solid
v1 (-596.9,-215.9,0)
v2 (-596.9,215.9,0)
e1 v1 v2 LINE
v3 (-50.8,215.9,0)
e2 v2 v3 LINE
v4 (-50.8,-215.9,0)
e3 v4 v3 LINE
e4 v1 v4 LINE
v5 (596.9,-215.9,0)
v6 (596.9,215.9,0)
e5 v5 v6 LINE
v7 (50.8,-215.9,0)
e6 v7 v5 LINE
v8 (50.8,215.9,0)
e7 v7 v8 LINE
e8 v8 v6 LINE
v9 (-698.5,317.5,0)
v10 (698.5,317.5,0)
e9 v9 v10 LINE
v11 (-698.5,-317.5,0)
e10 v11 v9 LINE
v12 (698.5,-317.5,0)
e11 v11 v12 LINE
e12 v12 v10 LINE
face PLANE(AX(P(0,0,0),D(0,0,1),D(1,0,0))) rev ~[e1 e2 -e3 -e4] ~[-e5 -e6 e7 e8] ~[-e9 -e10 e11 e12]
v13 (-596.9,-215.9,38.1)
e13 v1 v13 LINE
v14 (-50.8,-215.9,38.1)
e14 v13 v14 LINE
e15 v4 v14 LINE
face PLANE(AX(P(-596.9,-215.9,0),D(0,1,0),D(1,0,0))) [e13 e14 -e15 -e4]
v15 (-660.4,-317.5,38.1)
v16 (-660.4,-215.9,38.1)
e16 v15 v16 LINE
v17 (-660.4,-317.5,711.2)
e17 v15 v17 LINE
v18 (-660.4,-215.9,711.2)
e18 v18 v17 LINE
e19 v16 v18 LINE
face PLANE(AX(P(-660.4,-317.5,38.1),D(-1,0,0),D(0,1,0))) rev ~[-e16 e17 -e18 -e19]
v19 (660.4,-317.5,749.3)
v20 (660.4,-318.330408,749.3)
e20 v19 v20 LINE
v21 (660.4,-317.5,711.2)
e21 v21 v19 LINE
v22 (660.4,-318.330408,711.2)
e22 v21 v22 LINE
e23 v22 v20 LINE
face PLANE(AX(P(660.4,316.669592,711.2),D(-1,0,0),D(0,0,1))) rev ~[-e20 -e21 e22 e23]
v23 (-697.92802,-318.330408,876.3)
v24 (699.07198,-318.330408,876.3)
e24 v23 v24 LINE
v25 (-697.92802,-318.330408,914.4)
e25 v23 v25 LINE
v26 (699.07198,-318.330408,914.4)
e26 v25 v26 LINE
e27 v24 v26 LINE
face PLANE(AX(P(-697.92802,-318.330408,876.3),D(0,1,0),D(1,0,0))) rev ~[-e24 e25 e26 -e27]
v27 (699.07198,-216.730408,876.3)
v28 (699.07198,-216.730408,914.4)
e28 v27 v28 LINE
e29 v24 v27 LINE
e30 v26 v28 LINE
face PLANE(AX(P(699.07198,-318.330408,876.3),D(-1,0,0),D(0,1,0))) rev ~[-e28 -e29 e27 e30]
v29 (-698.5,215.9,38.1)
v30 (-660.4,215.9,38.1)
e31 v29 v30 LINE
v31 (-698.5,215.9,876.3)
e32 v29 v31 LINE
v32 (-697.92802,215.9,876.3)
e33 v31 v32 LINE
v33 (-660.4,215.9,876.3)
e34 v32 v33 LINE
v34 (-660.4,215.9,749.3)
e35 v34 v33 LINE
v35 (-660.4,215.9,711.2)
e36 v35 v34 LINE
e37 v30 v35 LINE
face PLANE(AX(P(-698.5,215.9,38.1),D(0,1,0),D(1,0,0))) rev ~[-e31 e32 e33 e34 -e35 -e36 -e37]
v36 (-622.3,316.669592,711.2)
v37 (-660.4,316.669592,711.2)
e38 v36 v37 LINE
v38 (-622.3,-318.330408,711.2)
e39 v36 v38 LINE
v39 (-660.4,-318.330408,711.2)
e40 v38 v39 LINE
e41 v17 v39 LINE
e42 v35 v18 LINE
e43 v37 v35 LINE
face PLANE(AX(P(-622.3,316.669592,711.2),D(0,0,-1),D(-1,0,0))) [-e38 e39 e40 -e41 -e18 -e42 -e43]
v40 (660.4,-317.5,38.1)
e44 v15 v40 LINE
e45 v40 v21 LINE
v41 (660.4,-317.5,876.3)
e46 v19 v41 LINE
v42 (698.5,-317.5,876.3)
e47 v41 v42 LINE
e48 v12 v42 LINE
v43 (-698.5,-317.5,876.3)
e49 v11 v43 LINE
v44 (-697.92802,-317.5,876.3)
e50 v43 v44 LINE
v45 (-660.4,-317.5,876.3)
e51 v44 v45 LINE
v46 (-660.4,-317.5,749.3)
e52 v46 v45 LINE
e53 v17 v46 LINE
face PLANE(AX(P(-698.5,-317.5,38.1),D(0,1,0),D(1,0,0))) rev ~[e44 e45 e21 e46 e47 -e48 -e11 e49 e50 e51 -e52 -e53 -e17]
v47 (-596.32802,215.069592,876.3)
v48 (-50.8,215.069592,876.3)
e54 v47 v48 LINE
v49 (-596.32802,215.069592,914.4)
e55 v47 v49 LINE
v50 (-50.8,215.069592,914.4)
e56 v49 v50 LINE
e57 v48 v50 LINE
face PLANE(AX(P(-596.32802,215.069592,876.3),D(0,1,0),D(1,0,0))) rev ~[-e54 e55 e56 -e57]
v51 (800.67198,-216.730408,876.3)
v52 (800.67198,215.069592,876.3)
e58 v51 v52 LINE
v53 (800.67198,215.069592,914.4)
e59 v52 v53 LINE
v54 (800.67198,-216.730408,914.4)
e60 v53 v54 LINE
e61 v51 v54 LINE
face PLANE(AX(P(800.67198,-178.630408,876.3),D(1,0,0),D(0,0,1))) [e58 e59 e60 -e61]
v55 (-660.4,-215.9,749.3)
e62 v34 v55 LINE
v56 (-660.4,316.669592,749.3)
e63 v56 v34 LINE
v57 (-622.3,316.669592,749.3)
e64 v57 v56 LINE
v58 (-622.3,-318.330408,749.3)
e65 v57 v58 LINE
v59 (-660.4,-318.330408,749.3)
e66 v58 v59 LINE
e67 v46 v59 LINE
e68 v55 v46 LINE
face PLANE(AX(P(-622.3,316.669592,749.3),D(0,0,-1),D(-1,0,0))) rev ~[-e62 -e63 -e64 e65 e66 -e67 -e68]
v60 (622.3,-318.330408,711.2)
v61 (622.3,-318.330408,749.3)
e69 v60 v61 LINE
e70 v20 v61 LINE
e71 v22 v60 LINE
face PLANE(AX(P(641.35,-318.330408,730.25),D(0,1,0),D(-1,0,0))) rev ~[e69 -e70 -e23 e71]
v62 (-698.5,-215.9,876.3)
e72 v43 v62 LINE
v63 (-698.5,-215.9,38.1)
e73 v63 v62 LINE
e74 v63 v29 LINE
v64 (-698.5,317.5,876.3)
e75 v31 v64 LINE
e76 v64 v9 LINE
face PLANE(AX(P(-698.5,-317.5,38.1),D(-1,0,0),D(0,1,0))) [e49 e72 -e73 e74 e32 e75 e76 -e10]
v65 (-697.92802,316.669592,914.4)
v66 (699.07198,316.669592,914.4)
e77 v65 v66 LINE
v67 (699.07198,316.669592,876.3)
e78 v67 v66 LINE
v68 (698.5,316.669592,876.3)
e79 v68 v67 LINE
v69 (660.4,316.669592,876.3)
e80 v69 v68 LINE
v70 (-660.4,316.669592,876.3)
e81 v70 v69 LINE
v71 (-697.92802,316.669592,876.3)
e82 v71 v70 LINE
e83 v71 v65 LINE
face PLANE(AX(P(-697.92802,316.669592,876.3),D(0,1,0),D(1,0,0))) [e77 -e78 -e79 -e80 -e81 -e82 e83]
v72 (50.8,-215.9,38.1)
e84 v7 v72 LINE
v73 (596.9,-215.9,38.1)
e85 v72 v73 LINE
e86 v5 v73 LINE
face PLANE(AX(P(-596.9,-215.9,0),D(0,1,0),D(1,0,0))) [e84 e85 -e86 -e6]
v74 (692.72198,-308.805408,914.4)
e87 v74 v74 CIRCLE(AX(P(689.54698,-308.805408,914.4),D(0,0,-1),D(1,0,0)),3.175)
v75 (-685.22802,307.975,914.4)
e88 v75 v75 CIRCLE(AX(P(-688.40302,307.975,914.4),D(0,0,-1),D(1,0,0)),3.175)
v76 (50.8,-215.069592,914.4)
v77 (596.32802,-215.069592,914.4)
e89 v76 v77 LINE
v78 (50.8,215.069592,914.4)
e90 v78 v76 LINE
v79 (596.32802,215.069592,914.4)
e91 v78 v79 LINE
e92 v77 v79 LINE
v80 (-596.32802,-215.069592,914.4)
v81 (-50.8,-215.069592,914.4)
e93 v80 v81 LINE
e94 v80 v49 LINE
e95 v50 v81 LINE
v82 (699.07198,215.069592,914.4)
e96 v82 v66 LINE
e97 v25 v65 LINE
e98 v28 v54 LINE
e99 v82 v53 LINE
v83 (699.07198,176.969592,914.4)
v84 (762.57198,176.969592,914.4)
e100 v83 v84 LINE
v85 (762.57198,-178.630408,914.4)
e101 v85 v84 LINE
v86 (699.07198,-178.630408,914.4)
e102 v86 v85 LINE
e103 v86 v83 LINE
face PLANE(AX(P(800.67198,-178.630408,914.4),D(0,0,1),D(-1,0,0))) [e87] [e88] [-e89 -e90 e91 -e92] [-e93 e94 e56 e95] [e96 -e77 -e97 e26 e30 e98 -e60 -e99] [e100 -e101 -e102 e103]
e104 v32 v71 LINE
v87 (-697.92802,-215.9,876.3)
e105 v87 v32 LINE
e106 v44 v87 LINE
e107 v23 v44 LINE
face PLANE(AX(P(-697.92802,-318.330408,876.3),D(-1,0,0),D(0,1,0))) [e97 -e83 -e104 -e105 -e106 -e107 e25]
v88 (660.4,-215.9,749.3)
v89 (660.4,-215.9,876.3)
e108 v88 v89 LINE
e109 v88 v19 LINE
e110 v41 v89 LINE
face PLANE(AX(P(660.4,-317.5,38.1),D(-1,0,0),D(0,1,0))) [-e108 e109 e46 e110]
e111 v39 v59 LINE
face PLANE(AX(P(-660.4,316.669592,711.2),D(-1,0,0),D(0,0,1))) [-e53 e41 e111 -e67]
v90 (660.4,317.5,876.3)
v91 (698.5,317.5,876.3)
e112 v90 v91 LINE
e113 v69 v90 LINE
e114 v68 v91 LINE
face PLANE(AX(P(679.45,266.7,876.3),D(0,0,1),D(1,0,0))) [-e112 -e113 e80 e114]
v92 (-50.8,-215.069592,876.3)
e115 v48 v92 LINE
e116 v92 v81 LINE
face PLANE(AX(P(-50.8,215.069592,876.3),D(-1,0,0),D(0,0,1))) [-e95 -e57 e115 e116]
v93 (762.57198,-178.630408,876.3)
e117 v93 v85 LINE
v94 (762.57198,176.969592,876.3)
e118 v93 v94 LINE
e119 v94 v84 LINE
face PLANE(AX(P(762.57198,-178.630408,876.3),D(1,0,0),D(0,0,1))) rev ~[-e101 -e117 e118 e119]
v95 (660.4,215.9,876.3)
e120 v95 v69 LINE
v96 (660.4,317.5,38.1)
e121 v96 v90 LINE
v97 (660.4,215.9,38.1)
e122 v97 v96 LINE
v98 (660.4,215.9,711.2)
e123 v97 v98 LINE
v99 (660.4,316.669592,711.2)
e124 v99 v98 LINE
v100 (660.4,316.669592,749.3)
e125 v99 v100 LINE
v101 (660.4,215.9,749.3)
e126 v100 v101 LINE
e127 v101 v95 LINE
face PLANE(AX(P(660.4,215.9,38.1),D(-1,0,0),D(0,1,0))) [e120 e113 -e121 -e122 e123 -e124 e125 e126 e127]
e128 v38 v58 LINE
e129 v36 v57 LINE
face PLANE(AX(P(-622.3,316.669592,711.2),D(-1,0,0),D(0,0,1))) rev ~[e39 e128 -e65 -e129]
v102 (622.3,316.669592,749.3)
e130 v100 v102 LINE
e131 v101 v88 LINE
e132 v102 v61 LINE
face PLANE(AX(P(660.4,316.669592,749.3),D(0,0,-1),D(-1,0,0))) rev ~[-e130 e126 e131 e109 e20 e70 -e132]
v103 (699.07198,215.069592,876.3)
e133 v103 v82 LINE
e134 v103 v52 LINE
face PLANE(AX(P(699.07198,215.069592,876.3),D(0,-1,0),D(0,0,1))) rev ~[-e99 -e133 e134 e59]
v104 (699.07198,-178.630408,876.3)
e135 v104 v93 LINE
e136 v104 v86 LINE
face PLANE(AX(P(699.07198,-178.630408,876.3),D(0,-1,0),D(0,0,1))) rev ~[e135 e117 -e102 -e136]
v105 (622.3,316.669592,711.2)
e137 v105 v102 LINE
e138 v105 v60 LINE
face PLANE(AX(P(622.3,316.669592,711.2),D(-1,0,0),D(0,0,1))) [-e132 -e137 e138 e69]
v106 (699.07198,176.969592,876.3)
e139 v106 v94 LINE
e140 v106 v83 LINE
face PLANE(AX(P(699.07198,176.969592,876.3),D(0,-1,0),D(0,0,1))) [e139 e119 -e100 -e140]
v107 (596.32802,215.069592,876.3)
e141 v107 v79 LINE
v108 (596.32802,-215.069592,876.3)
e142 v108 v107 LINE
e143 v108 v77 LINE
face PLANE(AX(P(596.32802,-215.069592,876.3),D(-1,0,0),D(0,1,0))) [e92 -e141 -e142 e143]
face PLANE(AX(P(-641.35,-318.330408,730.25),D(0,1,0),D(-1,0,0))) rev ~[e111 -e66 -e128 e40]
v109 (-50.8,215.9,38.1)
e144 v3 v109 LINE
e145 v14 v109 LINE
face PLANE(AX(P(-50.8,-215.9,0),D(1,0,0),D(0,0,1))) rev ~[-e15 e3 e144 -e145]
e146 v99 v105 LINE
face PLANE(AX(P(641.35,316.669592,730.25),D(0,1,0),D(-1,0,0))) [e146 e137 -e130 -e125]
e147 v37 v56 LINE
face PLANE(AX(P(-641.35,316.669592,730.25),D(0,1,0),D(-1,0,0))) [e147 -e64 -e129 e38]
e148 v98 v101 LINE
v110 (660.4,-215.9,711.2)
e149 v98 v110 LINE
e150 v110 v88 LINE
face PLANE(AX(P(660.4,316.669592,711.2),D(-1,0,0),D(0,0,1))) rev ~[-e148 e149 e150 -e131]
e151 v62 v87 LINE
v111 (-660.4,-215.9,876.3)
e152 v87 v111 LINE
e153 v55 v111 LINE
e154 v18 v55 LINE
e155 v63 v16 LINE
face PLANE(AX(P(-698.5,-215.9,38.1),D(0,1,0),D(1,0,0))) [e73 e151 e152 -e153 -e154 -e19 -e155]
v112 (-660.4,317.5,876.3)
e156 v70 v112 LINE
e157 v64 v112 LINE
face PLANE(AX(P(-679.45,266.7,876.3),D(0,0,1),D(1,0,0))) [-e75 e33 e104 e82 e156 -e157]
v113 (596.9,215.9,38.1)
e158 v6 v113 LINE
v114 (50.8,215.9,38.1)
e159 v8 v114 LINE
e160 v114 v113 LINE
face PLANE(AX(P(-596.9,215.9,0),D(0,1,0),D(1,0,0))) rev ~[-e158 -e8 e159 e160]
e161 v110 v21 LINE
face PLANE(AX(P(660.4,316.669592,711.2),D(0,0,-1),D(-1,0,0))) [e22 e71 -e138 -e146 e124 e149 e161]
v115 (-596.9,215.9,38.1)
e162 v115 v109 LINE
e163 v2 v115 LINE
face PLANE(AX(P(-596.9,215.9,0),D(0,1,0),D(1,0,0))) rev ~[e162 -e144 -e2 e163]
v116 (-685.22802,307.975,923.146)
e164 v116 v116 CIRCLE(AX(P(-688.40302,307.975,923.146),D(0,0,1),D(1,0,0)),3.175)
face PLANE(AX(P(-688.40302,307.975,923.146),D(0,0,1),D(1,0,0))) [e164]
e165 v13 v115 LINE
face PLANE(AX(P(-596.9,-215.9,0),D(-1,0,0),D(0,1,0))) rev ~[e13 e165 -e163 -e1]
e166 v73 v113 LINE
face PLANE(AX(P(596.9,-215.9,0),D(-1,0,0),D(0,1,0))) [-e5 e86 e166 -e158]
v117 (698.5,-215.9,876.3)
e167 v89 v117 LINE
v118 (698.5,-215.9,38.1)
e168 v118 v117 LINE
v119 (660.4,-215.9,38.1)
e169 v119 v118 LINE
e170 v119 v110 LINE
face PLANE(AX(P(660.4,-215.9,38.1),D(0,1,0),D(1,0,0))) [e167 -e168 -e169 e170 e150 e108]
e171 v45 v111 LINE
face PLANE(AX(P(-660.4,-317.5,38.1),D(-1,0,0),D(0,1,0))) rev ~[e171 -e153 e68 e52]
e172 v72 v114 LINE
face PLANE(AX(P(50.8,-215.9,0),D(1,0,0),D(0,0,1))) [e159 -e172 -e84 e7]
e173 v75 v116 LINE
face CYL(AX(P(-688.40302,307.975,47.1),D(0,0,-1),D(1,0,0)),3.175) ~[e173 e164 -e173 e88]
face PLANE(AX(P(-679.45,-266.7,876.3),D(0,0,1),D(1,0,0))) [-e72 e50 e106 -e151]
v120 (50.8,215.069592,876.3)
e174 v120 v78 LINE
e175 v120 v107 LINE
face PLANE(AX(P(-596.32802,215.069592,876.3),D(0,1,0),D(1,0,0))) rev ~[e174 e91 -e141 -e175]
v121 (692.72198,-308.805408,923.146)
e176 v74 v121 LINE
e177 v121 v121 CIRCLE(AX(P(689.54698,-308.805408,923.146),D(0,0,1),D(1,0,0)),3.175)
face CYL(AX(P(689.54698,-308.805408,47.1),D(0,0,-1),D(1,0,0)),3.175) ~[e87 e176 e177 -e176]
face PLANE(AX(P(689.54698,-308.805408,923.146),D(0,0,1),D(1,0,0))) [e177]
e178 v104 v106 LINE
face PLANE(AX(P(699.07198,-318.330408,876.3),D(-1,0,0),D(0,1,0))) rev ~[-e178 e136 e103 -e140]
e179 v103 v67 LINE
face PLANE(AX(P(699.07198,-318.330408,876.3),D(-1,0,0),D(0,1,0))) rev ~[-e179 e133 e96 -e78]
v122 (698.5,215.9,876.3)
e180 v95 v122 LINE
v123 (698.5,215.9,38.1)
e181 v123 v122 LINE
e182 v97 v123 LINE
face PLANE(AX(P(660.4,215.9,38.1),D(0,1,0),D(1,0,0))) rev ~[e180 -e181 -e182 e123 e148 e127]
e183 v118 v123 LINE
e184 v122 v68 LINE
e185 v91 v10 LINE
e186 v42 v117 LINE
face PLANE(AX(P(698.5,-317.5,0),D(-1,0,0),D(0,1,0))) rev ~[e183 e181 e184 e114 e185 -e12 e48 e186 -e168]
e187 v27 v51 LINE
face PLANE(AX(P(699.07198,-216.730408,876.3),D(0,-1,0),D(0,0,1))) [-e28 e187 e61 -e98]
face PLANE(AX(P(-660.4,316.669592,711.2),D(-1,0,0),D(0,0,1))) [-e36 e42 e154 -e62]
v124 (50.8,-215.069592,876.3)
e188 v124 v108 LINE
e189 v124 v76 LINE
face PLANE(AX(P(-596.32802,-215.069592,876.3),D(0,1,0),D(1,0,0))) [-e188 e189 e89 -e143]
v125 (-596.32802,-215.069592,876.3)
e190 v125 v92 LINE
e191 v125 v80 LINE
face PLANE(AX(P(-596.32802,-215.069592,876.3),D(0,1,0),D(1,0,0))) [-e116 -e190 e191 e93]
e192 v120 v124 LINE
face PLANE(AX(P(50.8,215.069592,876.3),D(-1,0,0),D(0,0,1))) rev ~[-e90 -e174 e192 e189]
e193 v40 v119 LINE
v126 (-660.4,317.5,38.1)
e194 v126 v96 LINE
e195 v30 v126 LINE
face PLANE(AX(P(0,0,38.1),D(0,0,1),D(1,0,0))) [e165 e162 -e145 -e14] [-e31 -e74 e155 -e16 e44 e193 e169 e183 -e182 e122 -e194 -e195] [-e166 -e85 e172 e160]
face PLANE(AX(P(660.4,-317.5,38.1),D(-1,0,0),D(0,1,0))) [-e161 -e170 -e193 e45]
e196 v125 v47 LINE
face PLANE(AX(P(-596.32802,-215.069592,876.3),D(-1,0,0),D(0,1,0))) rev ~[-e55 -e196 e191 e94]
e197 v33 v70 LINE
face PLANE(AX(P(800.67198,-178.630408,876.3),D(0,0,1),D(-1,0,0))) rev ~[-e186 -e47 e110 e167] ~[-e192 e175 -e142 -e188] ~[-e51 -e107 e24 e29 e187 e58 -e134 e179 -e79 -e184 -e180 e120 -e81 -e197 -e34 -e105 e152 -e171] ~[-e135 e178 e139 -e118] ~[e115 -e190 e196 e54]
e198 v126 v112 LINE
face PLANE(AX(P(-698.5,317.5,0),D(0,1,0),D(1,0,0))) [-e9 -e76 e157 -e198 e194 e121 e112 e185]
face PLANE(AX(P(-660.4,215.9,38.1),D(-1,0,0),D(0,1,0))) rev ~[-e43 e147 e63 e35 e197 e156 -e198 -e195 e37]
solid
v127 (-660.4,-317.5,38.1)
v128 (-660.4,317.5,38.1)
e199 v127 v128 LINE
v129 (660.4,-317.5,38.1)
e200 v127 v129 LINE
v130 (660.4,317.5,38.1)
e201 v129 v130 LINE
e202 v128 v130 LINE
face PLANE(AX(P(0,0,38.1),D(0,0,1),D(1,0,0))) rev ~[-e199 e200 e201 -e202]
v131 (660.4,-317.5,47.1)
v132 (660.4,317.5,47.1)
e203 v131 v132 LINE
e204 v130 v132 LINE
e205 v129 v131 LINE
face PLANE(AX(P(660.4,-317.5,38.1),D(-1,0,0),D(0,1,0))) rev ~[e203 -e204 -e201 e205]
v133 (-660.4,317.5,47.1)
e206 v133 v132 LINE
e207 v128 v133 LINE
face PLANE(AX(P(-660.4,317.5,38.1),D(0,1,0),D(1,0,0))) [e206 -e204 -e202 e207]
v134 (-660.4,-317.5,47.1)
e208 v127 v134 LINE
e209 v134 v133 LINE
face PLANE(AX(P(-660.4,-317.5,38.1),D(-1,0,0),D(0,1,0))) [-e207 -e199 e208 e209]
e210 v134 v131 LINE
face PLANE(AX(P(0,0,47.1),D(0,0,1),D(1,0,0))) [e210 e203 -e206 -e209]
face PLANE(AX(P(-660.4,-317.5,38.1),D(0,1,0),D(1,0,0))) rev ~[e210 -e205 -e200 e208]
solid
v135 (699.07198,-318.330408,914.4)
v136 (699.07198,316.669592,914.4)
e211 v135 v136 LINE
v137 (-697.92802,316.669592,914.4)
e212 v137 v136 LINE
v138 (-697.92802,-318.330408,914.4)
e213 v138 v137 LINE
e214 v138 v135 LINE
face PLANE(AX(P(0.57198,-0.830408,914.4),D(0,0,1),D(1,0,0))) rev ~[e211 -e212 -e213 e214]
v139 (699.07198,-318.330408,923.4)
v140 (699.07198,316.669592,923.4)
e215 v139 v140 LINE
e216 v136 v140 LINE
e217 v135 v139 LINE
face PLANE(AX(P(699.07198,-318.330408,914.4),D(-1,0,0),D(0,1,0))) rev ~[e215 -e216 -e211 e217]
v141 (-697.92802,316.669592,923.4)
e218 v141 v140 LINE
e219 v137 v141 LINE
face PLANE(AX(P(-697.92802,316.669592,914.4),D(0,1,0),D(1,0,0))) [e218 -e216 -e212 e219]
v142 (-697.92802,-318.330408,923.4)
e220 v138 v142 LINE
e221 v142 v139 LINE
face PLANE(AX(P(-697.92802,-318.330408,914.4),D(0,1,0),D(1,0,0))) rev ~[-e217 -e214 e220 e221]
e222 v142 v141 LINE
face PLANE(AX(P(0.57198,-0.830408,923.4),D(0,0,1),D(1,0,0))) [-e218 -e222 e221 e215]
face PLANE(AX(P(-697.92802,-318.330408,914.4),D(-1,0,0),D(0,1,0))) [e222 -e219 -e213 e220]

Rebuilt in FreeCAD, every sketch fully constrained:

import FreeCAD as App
import Part
import Sketcher
Q = App.Units.Quantity

doc = App.newDocument("Part")
body = doc.addObject("PartDesign::Body", "Body")

# Sketch on XY plane
sketch1 = doc.addObject("Sketcher::SketchObject", "Sketch")
body.addObject(sketch1)
sketch1.AttachmentSupport = (doc.XY_Plane, [""])
sketch1.MapMode = "FlatFace"
sketch1.addGeometry(Part.LineSegment(App.Vector(-698, 318, 0), App.Vector(-698, -318, 0)), False)
sketch1.addGeometry(Part.LineSegment(App.Vector(-698, -318, 0), App.Vector(698, -318, 0)), False)
sketch1.addGeometry(Part.LineSegment(App.Vector(698, -318, 0), App.Vector(698, 318, 0)), False)
sketch1.addGeometry(Part.LineSegment(App.Vector(698, 318, 0), App.Vector(-698, 318, 0)), False)
sketch1.addGeometry(Part.LineSegment(App.Vector(597, -216, 0), App.Vector(-597, -216, 0)), False)
sketch1.addGeometry(Part.LineSegment(App.Vector(-597, -216, 0), App.Vector(-597, 216, 0)), False)
sketch1.addGeometry(Part.LineSegment(App.Vector(-597, 216, 0), App.Vector(597, 216, 0)), False)
sketch1.addGeometry(Part.LineSegment(App.Vector(597, 216, 0), App.Vector(597, -216, 0)), False)
sketch1.addConstraint(Sketcher.Constraint("Coincident", 0, 2, 1, 1))
sketch1.addConstraint(Sketcher.Constraint("Coincident", 1, 2, 2, 1))
sketch1.addConstraint(Sketcher.Constraint("Coincident", 2, 2, 3, 1))
sketch1.addConstraint(Sketcher.Constraint("Coincident", 3, 2, 0, 1))
sketch1.addConstraint(Sketcher.Constraint("Coincident", 4, 2, 5, 1))
sketch1.addConstraint(Sketcher.Constraint("Coincident", 5, 2, 6, 1))
sketch1.addConstraint(Sketcher.Constraint("Coincident", 6, 2, 7, 1))
sketch1.addConstraint(Sketcher.Constraint("Coincident", 7, 2, 4, 1))
sketch1.addConstraint(Sketcher.Constraint("Vertical", 0))
sketch1.addConstraint(Sketcher.Constraint("Horizontal", 1))
sketch1.addConstraint(Sketcher.Constraint("Vertical", 2))
sketch1.addConstraint(Sketcher.Constraint("Horizontal", 3))
sketch1.addConstraint(Sketcher.Constraint("Horizontal", 4))
sketch1.addConstraint(Sketcher.Constraint("Vertical", 5))
sketch1.addConstraint(Sketcher.Constraint("Horizontal", 6))
sketch1.addConstraint(Sketcher.Constraint("Vertical", 7))
sketch1.addConstraint(Sketcher.Constraint("Symmetric", 0, 2, 2, 2, -1, 1))
sketch1.addConstraint(Sketcher.Constraint("Symmetric", 4, 2, 6, 2, -1, 1))
sketch1.addConstraint(Sketcher.Constraint("DistanceX", 1, 1, 1, 2, Q("55 in")))
sketch1.addConstraint(Sketcher.Constraint("DistanceX", 4, 2, 4, 1, Q("47 in")))
sketch1.addConstraint(Sketcher.Constraint("DistanceY", 0, 2, 0, 1, Q("25 in")))
sketch1.addConstraint(Sketcher.Constraint("DistanceY", 5, 1, 5, 2, Q("17 in")))
pad1 = doc.addObject("PartDesign::Pad", "Pad")
body.addObject(pad1)
pad1.Profile = sketch1
pad1.Length = Q("1.5 in")

# Sketch on XY plane
sketch2 = doc.addObject("Sketcher::SketchObject", "Sketch001")
body.addObject(sketch2)
sketch2.AttachmentSupport = (doc.XY_Plane, [""])
sketch2.MapMode = "FlatFace"
sketch2.AttachmentOffset = App.Placement(App.Vector(0, 0, 1.5 * 25.4), App.Rotation())
sketch2.addGeometry(Part.LineSegment(App.Vector(-698, -216, 0), App.Vector(-698, -318, 0)), False)
sketch2.addGeometry(Part.LineSegment(App.Vector(-698, -318, 0), App.Vector(-660, -318, 0)), False)
sketch2.addGeometry(Part.LineSegment(App.Vector(-660, -318, 0), App.Vector(-660, -216, 0)), False)
sketch2.addGeometry(Part.LineSegment(App.Vector(-660, -216, 0), App.Vector(-698, -216, 0)), False)
sketch2.addGeometry(Part.LineSegment(App.Vector(-698, 318, 0), App.Vector(-698, 216, 0)), False)
sketch2.addGeometry(Part.LineSegment(App.Vector(-698, 216, 0), App.Vector(-660, 216, 0)), False)
sketch2.addGeometry(Part.LineSegment(App.Vector(-660, 216, 0), App.Vector(-660, 318, 0)), False)
sketch2.addGeometry(Part.LineSegment(App.Vector(-660, 318, 0), App.Vector(-698, 318, 0)), False)
sketch2.addGeometry(Part.LineSegment(App.Vector(660, 318, 0), App.Vector(660, 216, 0)), False)
sketch2.addGeometry(Part.LineSegment(App.Vector(660, 216, 0), App.Vector(698, 216, 0)), False)
sketch2.addGeometry(Part.LineSegment(App.Vector(698, 216, 0), App.Vector(698, 318, 0)), False)
sketch2.addGeometry(Part.LineSegment(App.Vector(698, 318, 0), App.Vector(660, 318, 0)), False)
sketch2.addGeometry(Part.LineSegment(App.Vector(660, -216, 0), App.Vector(660, -318, 0)), False)
sketch2.addGeometry(Part.LineSegment(App.Vector(660, -318, 0), App.Vector(698, -318, 0)), False)
sketch2.addGeometry(Part.LineSegment(App.Vector(698, -318, 0), App.Vector(698, -216, 0)), False)
sketch2.addGeometry(Part.LineSegment(App.Vector(698, -216, 0), App.Vector(660, -216, 0)), False)
sketch2.addConstraint(Sketcher.Constraint("Coincident", 0, 2, 1, 1))
sketch2.addConstraint(Sketcher.Constraint("Coincident", 1, 2, 2, 1))
sketch2.addConstraint(Sketcher.Constraint("Coincident", 2, 2, 3, 1))
sketch2.addConstraint(Sketcher.Constraint("Coincident", 3, 2, 0, 1))
sketch2.addConstraint(Sketcher.Constraint("Coincident", 4, 2, 5, 1))
sketch2.addConstraint(Sketcher.Constraint("Coincident", 5, 2, 6, 1))
sketch2.addConstraint(Sketcher.Constraint("Coincident", 6, 2, 7, 1))
sketch2.addConstraint(Sketcher.Constraint("Coincident", 7, 2, 4, 1))
sketch2.addConstraint(Sketcher.Constraint("Coincident", 8, 2, 9, 1))
sketch2.addConstraint(Sketcher.Constraint("Coincident", 9, 2, 10, 1))
sketch2.addConstraint(Sketcher.Constraint("Coincident", 10, 2, 11, 1))
sketch2.addConstraint(Sketcher.Constraint("Coincident", 11, 2, 8, 1))
sketch2.addConstraint(Sketcher.Constraint("Coincident", 12, 2, 13, 1))
sketch2.addConstraint(Sketcher.Constraint("Coincident", 13, 2, 14, 1))
sketch2.addConstraint(Sketcher.Constraint("Coincident", 14, 2, 15, 1))
sketch2.addConstraint(Sketcher.Constraint("Coincident", 15, 2, 12, 1))
sketch2.addConstraint(Sketcher.Constraint("Vertical", 0))
sketch2.addConstraint(Sketcher.Constraint("Horizontal", 1))
sketch2.addConstraint(Sketcher.Constraint("Vertical", 2))
sketch2.addConstraint(Sketcher.Constraint("Horizontal", 3))
sketch2.addConstraint(Sketcher.Constraint("Vertical", 4))
sketch2.addConstraint(Sketcher.Constraint("Horizontal", 5))
sketch2.addConstraint(Sketcher.Constraint("Vertical", 6))
sketch2.addConstraint(Sketcher.Constraint("Horizontal", 7))
sketch2.addConstraint(Sketcher.Constraint("Vertical", 8))
sketch2.addConstraint(Sketcher.Constraint("Horizontal", 9))
sketch2.addConstraint(Sketcher.Constraint("Vertical", 10))
sketch2.addConstraint(Sketcher.Constraint("Horizontal", 11))
sketch2.addConstraint(Sketcher.Constraint("Vertical", 12))
sketch2.addConstraint(Sketcher.Constraint("Horizontal", 13))
sketch2.addConstraint(Sketcher.Constraint("Vertical", 14))
sketch2.addConstraint(Sketcher.Constraint("Horizontal", 15))
sketch2.addConstraint(Sketcher.Constraint("Symmetric", 2, 2, 8, 2, -1, 1))
sketch2.addConstraint(Sketcher.Constraint("Symmetric", 0, 2, 10, 2, -1, 1))
sketch2.addConstraint(Sketcher.Constraint("Symmetric", 6, 2, 12, 2, -1, 1))
sketch2.addConstraint(Sketcher.Constraint("Symmetric", 4, 2, 14, 2, -1, 1))
sketch2.addConstraint(Sketcher.Constraint("Symmetric", 5, 2, 8, 2, -2))
sketch2.addConstraint(Sketcher.Constraint("Symmetric", 7, 2, 10, 2, -2))
sketch2.addConstraint(Sketcher.Constraint("DistanceY", 0, 2, 0, 1, Q("4 in")))
sketch2.addConstraint(Sketcher.Constraint("DistanceX", 1, 1, 1, 2, Q("1.5 in")))
sketch2.addConstraint(Sketcher.Constraint("DistanceX", 1, 2, -1, 1, Q("26 in")))
sketch2.addConstraint(Sketcher.Constraint("DistanceY", 3, 2, 4, 2, Q("17 in")))
pad2 = doc.addObject("PartDesign::Pad", "Pad001")
body.addObject(pad2)
pad2.Profile = sketch2
pad2.Length = Q("33 in")

# Sketch on XY plane
sketch3 = doc.addObject("Sketcher::SketchObject", "Sketch002")
body.addObject(sketch3)
sketch3.AttachmentSupport = (doc.XY_Plane, [""])
sketch3.MapMode = "FlatFace"
sketch3.AttachmentOffset = App.Placement(App.Vector(0, 0, 34.5 * 25.4), App.Rotation())
sketch3.addGeometry(Part.LineSegment(App.Vector(-698, 317, 0), App.Vector(-698, -318, 0)), False)
sketch3.addGeometry(Part.LineSegment(App.Vector(-698, -318, 0), App.Vector(699, -318, 0)), False)
sketch3.addGeometry(Part.LineSegment(App.Vector(699, -318, 0), App.Vector(699, 317, 0)), False)
sketch3.addGeometry(Part.LineSegment(App.Vector(699, 317, 0), App.Vector(-698, 317, 0)), False)
sketch3.addGeometry(Part.LineSegment(App.Vector(596, -215, 0), App.Vector(-596, -215, 0)), False)
sketch3.addGeometry(Part.LineSegment(App.Vector(-596, -215, 0), App.Vector(-596, 215, 0)), False)
sketch3.addGeometry(Part.LineSegment(App.Vector(-596, 215, 0), App.Vector(596, 215, 0)), False)
sketch3.addGeometry(Part.LineSegment(App.Vector(596, 215, 0), App.Vector(596, -215, 0)), False)
sketch3.addConstraint(Sketcher.Constraint("Coincident", 0, 2, 1, 1))
sketch3.addConstraint(Sketcher.Constraint("Coincident", 1, 2, 2, 1))
sketch3.addConstraint(Sketcher.Constraint("Coincident", 2, 2, 3, 1))
sketch3.addConstraint(Sketcher.Constraint("Coincident", 3, 2, 0, 1))
sketch3.addConstraint(Sketcher.Constraint("Coincident", 4, 2, 5, 1))
sketch3.addConstraint(Sketcher.Constraint("Coincident", 5, 2, 6, 1))
sketch3.addConstraint(Sketcher.Constraint("Coincident", 6, 2, 7, 1))
sketch3.addConstraint(Sketcher.Constraint("Coincident", 7, 2, 4, 1))
sketch3.addConstraint(Sketcher.Constraint("Vertical", 0))
sketch3.addConstraint(Sketcher.Constraint("Horizontal", 1))
sketch3.addConstraint(Sketcher.Constraint("Vertical", 2))
sketch3.addConstraint(Sketcher.Constraint("Horizontal", 3))
sketch3.addConstraint(Sketcher.Constraint("Horizontal", 4))
sketch3.addConstraint(Sketcher.Constraint("Vertical", 5))
sketch3.addConstraint(Sketcher.Constraint("Horizontal", 6))
sketch3.addConstraint(Sketcher.Constraint("Vertical", 7))
sketch3.addConstraint(Sketcher.Constraint("Symmetric", 4, 2, 6, 2, -1, 1))
sketch3.addConstraint(Sketcher.Constraint("DistanceX", 1, 1, 1, 2, Q("55 in")))
sketch3.addConstraint(Sketcher.Constraint("DistanceY", 0, 2, 0, 1, Q("25 in")))
sketch3.addConstraint(Sketcher.Constraint("DistanceX", 0, 2, 4, 2, Q("4 in")))
sketch3.addConstraint(Sketcher.Constraint("DistanceY", 5, 2, 3, 2, Q("4 in")))
sketch3.addConstraint(Sketcher.Constraint("DistanceX", 4, 2, 4, 1, Q("1192.65604 mm")))
sketch3.addConstraint(Sketcher.Constraint("DistanceY", 5, 1, 5, 2, Q("430.139184 mm")))
pad3 = doc.addObject("PartDesign::Pad", "Pad002")
body.addObject(pad3)
pad3.Profile = sketch3
pad3.Length = Q("1.5 in")

# Sketch on XZ plane
sketch4 = doc.addObject("Sketcher::SketchObject", "Sketch003")
body.addObject(sketch4)
sketch4.AttachmentSupport = (doc.XZ_Plane, [""])
sketch4.MapMode = "FlatFace"
sketch4.AttachmentOffset = App.Placement(App.Vector(0, 0, -215.069592), App.Rotation())
sketch4.addGeometry(Part.LineSegment(App.Vector(-51, 914, 0), App.Vector(-51, 876, 0)), False)
sketch4.addGeometry(Part.LineSegment(App.Vector(-51, 876, 0), App.Vector(51, 876, 0)), False)
sketch4.addGeometry(Part.LineSegment(App.Vector(51, 876, 0), App.Vector(51, 914, 0)), False)
sketch4.addGeometry(Part.LineSegment(App.Vector(51, 914, 0), App.Vector(-51, 914, 0)), False)
sketch4.addConstraint(Sketcher.Constraint("Coincident", 0, 2, 1, 1))
sketch4.addConstraint(Sketcher.Constraint("Coincident", 1, 2, 2, 1))
sketch4.addConstraint(Sketcher.Constraint("Coincident", 2, 2, 3, 1))
sketch4.addConstraint(Sketcher.Constraint("Coincident", 3, 2, 0, 1))
sketch4.addConstraint(Sketcher.Constraint("Vertical", 0))
sketch4.addConstraint(Sketcher.Constraint("Horizontal", 1))
sketch4.addConstraint(Sketcher.Constraint("Vertical", 2))
sketch4.addConstraint(Sketcher.Constraint("Horizontal", 3))
sketch4.addConstraint(Sketcher.Constraint("DistanceX", 1, 1, 1, 2, Q("4 in")))
sketch4.addConstraint(Sketcher.Constraint("DistanceY", 0, 2, 0, 1, Q("1.5 in")))
sketch4.addConstraint(Sketcher.Constraint("DistanceX", 0, 2, -1, 1, Q("2 in")))
sketch4.addConstraint(Sketcher.Constraint("DistanceY", -1, 1, 2, 2, Q("36 in")))
pad4 = doc.addObject("PartDesign::Pad", "Pad003")
body.addObject(pad4)
pad4.Profile = sketch4
pad4.Length = Q("17 in")

# Sketch on XZ plane
sketch5 = doc.addObject("Sketcher::SketchObject", "Sketch004")
body.addObject(sketch5)
sketch5.AttachmentSupport = (doc.XZ_Plane, [""])
sketch5.MapMode = "FlatFace"
sketch5.AttachmentOffset = App.Placement(App.Vector(0, 0, 8.5 * 25.4), App.Rotation())
sketch5.addGeometry(Part.LineSegment(App.Vector(51, 38, 0), App.Vector(51, 0, 0)), False)
sketch5.addGeometry(Part.LineSegment(App.Vector(51, 0, 0), App.Vector(-51, 0, 0)), False)
sketch5.addGeometry(Part.LineSegment(App.Vector(-51, 0, 0), App.Vector(-51, 38, 0)), False)
sketch5.addGeometry(Part.LineSegment(App.Vector(-51, 38, 0), App.Vector(51, 38, 0)), False)
sketch5.addConstraint(Sketcher.Constraint("Coincident", 0, 2, 1, 1))
sketch5.addConstraint(Sketcher.Constraint("Coincident", 1, 2, 2, 1))
sketch5.addConstraint(Sketcher.Constraint("Coincident", 2, 2, 3, 1))
sketch5.addConstraint(Sketcher.Constraint("Coincident", 3, 2, 0, 1))
sketch5.addConstraint(Sketcher.Constraint("Vertical", 0))
sketch5.addConstraint(Sketcher.Constraint("Horizontal", 1))
sketch5.addConstraint(Sketcher.Constraint("Vertical", 2))
sketch5.addConstraint(Sketcher.Constraint("Horizontal", 3))
sketch5.addConstraint(Sketcher.Constraint("Symmetric", 0, 2, 1, 2, -1, 1))
sketch5.addConstraint(Sketcher.Constraint("DistanceX", 1, 2, 1, 1, Q("4 in")))
sketch5.addConstraint(Sketcher.Constraint("DistanceY", 0, 2, 0, 1, Q("1.5 in")))
pad5 = doc.addObject("PartDesign::Pad", "Pad004")
body.addObject(pad5)
pad5.Profile = sketch5
pad5.Length = Q("17 in")
pad5.Reversed = True

# Sketch on YZ plane
sketch6 = doc.addObject("Sketcher::SketchObject", "Sketch005")
body.addObject(sketch6)
sketch6.AttachmentSupport = (doc.YZ_Plane, [""])
sketch6.MapMode = "FlatFace"
sketch6.AttachmentOffset = App.Placement(App.Vector(0, 0, 699.07198), App.Rotation())
sketch6.addGeometry(Part.LineSegment(App.Vector(-217, 914, 0), App.Vector(-217, 876, 0)), False)
sketch6.addGeometry(Part.LineSegment(App.Vector(-217, 876, 0), App.Vector(-179, 876, 0)), False)
sketch6.addGeometry(Part.LineSegment(App.Vector(-179, 876, 0), App.Vector(-179, 914, 0)), False)
sketch6.addGeometry(Part.LineSegment(App.Vector(-179, 914, 0), App.Vector(-217, 914, 0)), False)
sketch6.addGeometry(Part.LineSegment(App.Vector(177, 914, 0), App.Vector(177, 876, 0)), False)
sketch6.addGeometry(Part.LineSegment(App.Vector(177, 876, 0), App.Vector(215, 876, 0)), False)
sketch6.addGeometry(Part.LineSegment(App.Vector(215, 876, 0), App.Vector(215, 914, 0)), False)
sketch6.addGeometry(Part.LineSegment(App.Vector(215, 914, 0), App.Vector(177, 914, 0)), False)
sketch6.addConstraint(Sketcher.Constraint("Coincident", 0, 2, 1, 1))
sketch6.addConstraint(Sketcher.Constraint("Coincident", 1, 2, 2, 1))
sketch6.addConstraint(Sketcher.Constraint("Coincident", 2, 2, 3, 1))
sketch6.addConstraint(Sketcher.Constraint("Coincident", 3, 2, 0, 1))
sketch6.addConstraint(Sketcher.Constraint("Coincident", 4, 2, 5, 1))
sketch6.addConstraint(Sketcher.Constraint("Coincident", 5, 2, 6, 1))
sketch6.addConstraint(Sketcher.Constraint("Coincident", 6, 2, 7, 1))
sketch6.addConstraint(Sketcher.Constraint("Coincident", 7, 2, 4, 1))
sketch6.addConstraint(Sketcher.Constraint("Vertical", 0))
sketch6.addConstraint(Sketcher.Constraint("Horizontal", 1))
sketch6.addConstraint(Sketcher.Constraint("Vertical", 2))
sketch6.addConstraint(Sketcher.Constraint("Horizontal", 3))
sketch6.addConstraint(Sketcher.Constraint("Vertical", 4))
sketch6.addConstraint(Sketcher.Constraint("Horizontal", 5))
sketch6.addConstraint(Sketcher.Constraint("Vertical", 6))
sketch6.addConstraint(Sketcher.Constraint("Horizontal", 7))
sketch6.addConstraint(Sketcher.Constraint("Horizontal", 1, 2, 4, 2))
sketch6.addConstraint(Sketcher.Constraint("Horizontal", 3, 2, 6, 2))
sketch6.addConstraint(Sketcher.Constraint("Equal", 3, 5))
sketch6.addConstraint(Sketcher.Constraint("Equal", 7, 0))
sketch6.addConstraint(Sketcher.Constraint("DistanceX", 1, 1, 1, 2, Q("1.5 in")))
sketch6.addConstraint(Sketcher.Constraint("DistanceY", -1, 1, 2, 2, Q("36 in")))
sketch6.addConstraint(Sketcher.Constraint("DistanceX", 1, 2, 4, 2, Q("14 in")))
sketch6.addConstraint(Sketcher.Constraint("DistanceX", 0, 2, -1, 1, Q("216.730408 mm")))
pad6 = doc.addObject("PartDesign::Pad", "Pad005")
body.addObject(pad6)
pad6.Profile = sketch6
pad6.Length = Q("4 in")

# Sketch on XZ plane
sketch7 = doc.addObject("Sketcher::SketchObject", "Sketch006")
body.addObject(sketch7)
sketch7.AttachmentSupport = (doc.XZ_Plane, [""])
sketch7.MapMode = "FlatFace"
sketch7.AttachmentOffset = App.Placement(App.Vector(0, 0, 178.630408), App.Rotation())
sketch7.addGeometry(Part.LineSegment(App.Vector(801, 914, 0), App.Vector(801, 876, 0)), False)
sketch7.addGeometry(Part.LineSegment(App.Vector(801, 876, 0), App.Vector(763, 876, 0)), False)
sketch7.addGeometry(Part.LineSegment(App.Vector(763, 876, 0), App.Vector(763, 914, 0)), False)
sketch7.addGeometry(Part.LineSegment(App.Vector(763, 914, 0), App.Vector(801, 914, 0)), False)
sketch7.addConstraint(Sketcher.Constraint("Coincident", 0, 2, 1, 1))
sketch7.addConstraint(Sketcher.Constraint("Coincident", 1, 2, 2, 1))
sketch7.addConstraint(Sketcher.Constraint("Coincident", 2, 2, 3, 1))
sketch7.addConstraint(Sketcher.Constraint("Coincident", 3, 2, 0, 1))
sketch7.addConstraint(Sketcher.Constraint("Vertical", 0))
sketch7.addConstraint(Sketcher.Constraint("Horizontal", 1))
sketch7.addConstraint(Sketcher.Constraint("Vertical", 2))
sketch7.addConstraint(Sketcher.Constraint("Horizontal", 3))
sketch7.addConstraint(Sketcher.Constraint("Equal", 3, 0))
sketch7.addConstraint(Sketcher.Constraint("DistanceX", 1, 2, 1, 1, Q("1.5 in")))
sketch7.addConstraint(Sketcher.Constraint("DistanceY", -1, 1, 2, 2, Q("36 in")))
sketch7.addConstraint(Sketcher.Constraint("DistanceX", -1, 1, 0, 2, Q("800.67198 mm")))
pad7 = doc.addObject("PartDesign::Pad", "Pad006")
body.addObject(pad7)
pad7.Profile = sketch7
pad7.Length = Q("14.1 in")
pad7.Reversed = True

# Sketch on XZ plane
sketch8 = doc.addObject("Sketcher::SketchObject", "Sketch007")
body.addObject(sketch8)
sketch8.AttachmentSupport = (doc.XZ_Plane, [""])
sketch8.MapMode = "FlatFace"
sketch8.AttachmentOffset = App.Placement(App.Vector(0, 0, -316.669592), App.Rotation())
sketch8.addGeometry(Part.LineSegment(App.Vector(660, 749, 0), App.Vector(660, 711, 0)), False)
sketch8.addGeometry(Part.LineSegment(App.Vector(660, 711, 0), App.Vector(622, 711, 0)), False)
sketch8.addGeometry(Part.LineSegment(App.Vector(622, 711, 0), App.Vector(622, 749, 0)), False)
sketch8.addGeometry(Part.LineSegment(App.Vector(622, 749, 0), App.Vector(660, 749, 0)), False)
sketch8.addGeometry(Part.LineSegment(App.Vector(-622, 749, 0), App.Vector(-622, 711, 0)), False)
sketch8.addGeometry(Part.LineSegment(App.Vector(-622, 711, 0), App.Vector(-660, 711, 0)), False)
sketch8.addGeometry(Part.LineSegment(App.Vector(-660, 711, 0), App.Vector(-660, 749, 0)), False)
sketch8.addGeometry(Part.LineSegment(App.Vector(-660, 749, 0), App.Vector(-622, 749, 0)), False)
sketch8.addConstraint(Sketcher.Constraint("Coincident", 0, 2, 1, 1))
sketch8.addConstraint(Sketcher.Constraint("Coincident", 1, 2, 2, 1))
sketch8.addConstraint(Sketcher.Constraint("Coincident", 2, 2, 3, 1))
sketch8.addConstraint(Sketcher.Constraint("Coincident", 3, 2, 0, 1))
sketch8.addConstraint(Sketcher.Constraint("Coincident", 4, 2, 5, 1))
sketch8.addConstraint(Sketcher.Constraint("Coincident", 5, 2, 6, 1))
sketch8.addConstraint(Sketcher.Constraint("Coincident", 6, 2, 7, 1))
sketch8.addConstraint(Sketcher.Constraint("Coincident", 7, 2, 4, 1))
sketch8.addConstraint(Sketcher.Constraint("Vertical", 0))
sketch8.addConstraint(Sketcher.Constraint("Horizontal", 1))
sketch8.addConstraint(Sketcher.Constraint("Vertical", 2))
sketch8.addConstraint(Sketcher.Constraint("Horizontal", 3))
sketch8.addConstraint(Sketcher.Constraint("Vertical", 4))
sketch8.addConstraint(Sketcher.Constraint("Horizontal", 5))
sketch8.addConstraint(Sketcher.Constraint("Vertical", 6))
sketch8.addConstraint(Sketcher.Constraint("Horizontal", 7))
sketch8.addConstraint(Sketcher.Constraint("Symmetric", 1, 2, 4, 2, -2))
sketch8.addConstraint(Sketcher.Constraint("Symmetric", 3, 2, 6, 2, -2))
sketch8.addConstraint(Sketcher.Constraint("Equal", 7, 0))
sketch8.addConstraint(Sketcher.Constraint("DistanceX", 1, 2, 1, 1, Q("1.5 in")))
sketch8.addConstraint(Sketcher.Constraint("DistanceX", -1, 1, 0, 2, Q("26 in")))
sketch8.addConstraint(Sketcher.Constraint("DistanceY", -1, 1, 0, 2, Q("28 in")))
pad8 = doc.addObject("PartDesign::Pad", "Pad007")
body.addObject(pad8)
pad8.Profile = sketch8
pad8.Length = Q("25 in")

# Sketch on XY plane
sketch9 = doc.addObject("Sketcher::SketchObject", "Sketch008")
body.addObject(sketch9)
sketch9.AttachmentSupport = (doc.XY_Plane, [""])
sketch9.MapMode = "FlatFace"
sketch9.AttachmentOffset = App.Placement(App.Vector(0, 0, 47.1), App.Rotation())
sketch9.addGeometry(Part.Circle(App.Vector(-688.4, 308, 0), App.Vector(0, 0, 1), 3.2), False)
sketch9.addGeometry(Part.Circle(App.Vector(689.5, -308.8, 0), App.Vector(0, 0, 1), 3.2), False)
sketch9.addConstraint(Sketcher.Constraint("Equal", 0, 1))
sketch9.addConstraint(Sketcher.Constraint("Diameter", 0, Q("0.25 in")))
sketch9.addConstraint(Sketcher.Constraint("DistanceX", 0, 3, 1, 3, Q("54.25 in")))
sketch9.addConstraint(Sketcher.Constraint("DistanceY", -1, 1, 0, 3, Q("12.125 in")))
sketch9.addConstraint(Sketcher.Constraint("DistanceX", 0, 3, -1, 1, Q("688.40302 mm")))
sketch9.addConstraint(Sketcher.Constraint("DistanceY", 1, 3, -1, 1, Q("308.805408 mm")))
pad9 = doc.addObject("PartDesign::Pad", "Pad008")
body.addObject(pad9)
pad9.Profile = sketch9
pad9.Length = Q("34.49 in")
body2 = doc.addObject("PartDesign::Body", "Body001")

# Sketch on XY plane
sketch10 = doc.addObject("Sketcher::SketchObject", "Sketch009")
body2.addObject(sketch10)
sketch10.AttachmentSupport = (doc.getObject("XY_Plane001"), [""])
sketch10.MapMode = "FlatFace"
sketch10.AttachmentOffset = App.Placement(App.Vector(0, 0, 1.5 * 25.4), App.Rotation())
sketch10.addGeometry(Part.LineSegment(App.Vector(-660, 318, 0), App.Vector(-660, -318, 0)), False)
sketch10.addGeometry(Part.LineSegment(App.Vector(-660, -318, 0), App.Vector(660, -318, 0)), False)
sketch10.addGeometry(Part.LineSegment(App.Vector(660, -318, 0), App.Vector(660, 318, 0)), False)
sketch10.addGeometry(Part.LineSegment(App.Vector(660, 318, 0), App.Vector(-660, 318, 0)), False)
sketch10.addConstraint(Sketcher.Constraint("Coincident", 0, 2, 1, 1))
sketch10.addConstraint(Sketcher.Constraint("Coincident", 1, 2, 2, 1))
sketch10.addConstraint(Sketcher.Constraint("Coincident", 2, 2, 3, 1))
sketch10.addConstraint(Sketcher.Constraint("Coincident", 3, 2, 0, 1))
sketch10.addConstraint(Sketcher.Constraint("Vertical", 0))
sketch10.addConstraint(Sketcher.Constraint("Horizontal", 1))
sketch10.addConstraint(Sketcher.Constraint("Vertical", 2))
sketch10.addConstraint(Sketcher.Constraint("Horizontal", 3))
sketch10.addConstraint(Sketcher.Constraint("Symmetric", 0, 2, 2, 2, -1, 1))
sketch10.addConstraint(Sketcher.Constraint("DistanceX", 1, 1, 1, 2, Q("52 in")))
sketch10.addConstraint(Sketcher.Constraint("DistanceY", 0, 2, 0, 1, Q("25 in")))
pad10 = doc.addObject("PartDesign::Pad", "Pad009")
body2.addObject(pad10)
pad10.Profile = sketch10
pad10.Length = 9
body3 = doc.addObject("PartDesign::Body", "Body002")

# Sketch on XY plane
sketch11 = doc.addObject("Sketcher::SketchObject", "Sketch010")
body3.addObject(sketch11)
sketch11.AttachmentSupport = (doc.getObject("XY_Plane002"), [""])
sketch11.MapMode = "FlatFace"
sketch11.AttachmentOffset = App.Placement(App.Vector(0, 0, 36 * 25.4), App.Rotation())
sketch11.addGeometry(Part.LineSegment(App.Vector(-698, 317, 0), App.Vector(-698, -318, 0)), False)
sketch11.addGeometry(Part.LineSegment(App.Vector(-698, -318, 0), App.Vector(699, -318, 0)), False)
sketch11.addGeometry(Part.LineSegment(App.Vector(699, -318, 0), App.Vector(699, 317, 0)), False)
sketch11.addGeometry(Part.LineSegment(App.Vector(699, 317, 0), App.Vector(-698, 317, 0)), False)
sketch11.addConstraint(Sketcher.Constraint("Coincident", 0, 2, 1, 1))
sketch11.addConstraint(Sketcher.Constraint("Coincident", 1, 2, 2, 1))
sketch11.addConstraint(Sketcher.Constraint("Coincident", 2, 2, 3, 1))
sketch11.addConstraint(Sketcher.Constraint("Coincident", 3, 2, 0, 1))
sketch11.addConstraint(Sketcher.Constraint("Vertical", 0))
sketch11.addConstraint(Sketcher.Constraint("Horizontal", 1))
sketch11.addConstraint(Sketcher.Constraint("Vertical", 2))
sketch11.addConstraint(Sketcher.Constraint("Horizontal", 3))
sketch11.addConstraint(Sketcher.Constraint("DistanceX", 1, 1, 1, 2, Q("55 in")))
sketch11.addConstraint(Sketcher.Constraint("DistanceY", 0, 2, 0, 1, Q("25 in")))
sketch11.addConstraint(Sketcher.Constraint("DistanceX", 0, 2, -1, 1, Q("697.92802 mm")))
sketch11.addConstraint(Sketcher.Constraint("DistanceY", 0, 2, -1, 1, Q("318.330408 mm")))
pad11 = doc.addObject("PartDesign::Pad", "Pad010")
body3.addObject(pad11)
pad11.Profile = sketch11
pad11.Length = 9

doc.recompute()
